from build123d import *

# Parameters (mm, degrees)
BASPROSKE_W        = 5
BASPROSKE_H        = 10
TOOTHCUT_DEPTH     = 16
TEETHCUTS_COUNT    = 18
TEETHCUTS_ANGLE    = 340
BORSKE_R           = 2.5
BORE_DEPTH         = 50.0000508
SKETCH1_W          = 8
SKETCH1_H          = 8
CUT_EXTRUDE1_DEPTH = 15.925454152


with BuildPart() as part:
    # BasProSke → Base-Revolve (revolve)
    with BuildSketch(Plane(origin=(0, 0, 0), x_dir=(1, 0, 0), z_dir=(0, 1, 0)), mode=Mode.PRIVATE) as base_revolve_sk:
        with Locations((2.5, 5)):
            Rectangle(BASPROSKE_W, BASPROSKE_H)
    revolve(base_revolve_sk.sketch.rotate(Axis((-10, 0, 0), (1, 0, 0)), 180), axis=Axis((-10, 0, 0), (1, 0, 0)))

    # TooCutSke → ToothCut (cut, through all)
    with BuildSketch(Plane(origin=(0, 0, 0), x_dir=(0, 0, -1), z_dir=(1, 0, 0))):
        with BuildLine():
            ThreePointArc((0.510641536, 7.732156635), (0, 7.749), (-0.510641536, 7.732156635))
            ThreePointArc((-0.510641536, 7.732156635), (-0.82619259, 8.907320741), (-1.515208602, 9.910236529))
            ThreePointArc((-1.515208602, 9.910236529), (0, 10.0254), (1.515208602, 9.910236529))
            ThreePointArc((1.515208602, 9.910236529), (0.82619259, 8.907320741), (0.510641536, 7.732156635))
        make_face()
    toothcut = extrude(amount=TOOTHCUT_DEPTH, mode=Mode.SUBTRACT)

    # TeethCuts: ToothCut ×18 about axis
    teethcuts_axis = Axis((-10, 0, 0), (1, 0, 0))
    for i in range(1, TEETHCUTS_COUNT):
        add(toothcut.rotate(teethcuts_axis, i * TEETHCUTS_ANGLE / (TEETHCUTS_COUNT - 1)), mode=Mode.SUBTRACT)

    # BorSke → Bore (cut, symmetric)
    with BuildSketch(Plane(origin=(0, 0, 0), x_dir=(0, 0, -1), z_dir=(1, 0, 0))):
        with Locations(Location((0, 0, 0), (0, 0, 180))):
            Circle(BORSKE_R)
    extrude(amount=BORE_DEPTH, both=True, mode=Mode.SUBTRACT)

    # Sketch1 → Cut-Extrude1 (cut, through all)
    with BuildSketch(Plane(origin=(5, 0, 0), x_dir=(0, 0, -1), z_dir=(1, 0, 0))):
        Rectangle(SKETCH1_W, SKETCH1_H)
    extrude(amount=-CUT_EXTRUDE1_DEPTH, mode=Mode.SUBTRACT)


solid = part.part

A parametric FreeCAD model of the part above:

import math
import FreeCAD as App
import Part
import Sketcher
from FreeCAD import Vector
Q = App.Units.Quantity


def add_polygon(sketch, points):
    """Adds a closed chain of lines whose ends are joined by coincident constraints."""
    first, n = sketch.GeometryCount, len(points)
    for a, b in zip(points, points[1:] + points[:1]):
        sketch.addGeometry(Part.LineSegment(App.Vector(*a, 0), App.Vector(*b, 0)), False)
    for i in range(n):
        sketch.addConstraint(Sketcher.Constraint("Coincident", first + i, 2, first + (i + 1) % n, 1))

doc = App.newDocument("Part")
body = doc.addObject("PartDesign::Body", "Body")

sketch1 = body.newObject("Sketcher::SketchObject", "Sketch")
sketch1.AttachmentSupport = (doc.getObject("XZ_Plane"), [""])
sketch1.MapMode = "FlatFace"
add_polygon(sketch1, [(0, -10), (0, 0), (5, 0), (5, -10)])
sketch1.addConstraint(Sketcher.Constraint("Vertical", 0))
sketch1.addConstraint(Sketcher.Constraint("Horizontal", 1))
sketch1.addConstraint(Sketcher.Constraint("Vertical", 2))
sketch1.addConstraint(Sketcher.Constraint("Horizontal", 3))
sketch1.addConstraint(Sketcher.Constraint("Coincident", 0, 2, -1, 1))
sketch1.addConstraint(Sketcher.Constraint("DistanceX", 1, 1, 1, 2, Q("5 mm")))
sketch1.addConstraint(Sketcher.Constraint("DistanceY", 0, 1, 0, 2, Q("10 mm")))
revolution = body.newObject("PartDesign::Revolution", "Revolution")
revolution.Profile = sketch1
revolution.ReferenceAxis = (sketch1, ["H_Axis"])
revolution.Angle = 360

sketch2 = body.newObject("Sketcher::SketchObject", "Sketch001")
sketch2.AttachmentSupport = (doc.getObject("YZ_Plane"), [""])
sketch2.MapMode = "FlatFace"
sketch2.addGeometry(Part.ArcOfCircle(Part.Circle(Vector(0, 0, 0), Vector(0, 0, 1), 7.7), math.radians(-3.78), math.radians(3.78)), False)
sketch2.addGeometry(Part.ArcOfCircle(Part.Circle(Vector(7.4, -4.1, 0), Vector(0, 0, 1), 3.6), math.radians(46), math.radians(85)), False)
sketch2.addGeometry(Part.ArcOfCircle(Part.Circle(Vector(0, 0, 0), Vector(0, 0, 1), 10), math.radians(-8.69), math.radians(8.69)), False)
sketch2.addGeometry(Part.ArcOfCircle(Part.Circle(Vector(7.4, 4.1, 0), Vector(0, 0, 1), 3.6), math.radians(-85), math.radians(-46)), False)
sketch2.addConstraint(Sketcher.Constraint("Coincident", 0, 1, 1, 2))
sketch2.addConstraint(Sketcher.Constraint("Coincident", 1, 1, 2, 1))
sketch2.addConstraint(Sketcher.Constraint("Coincident", 2, 2, 3, 2))
sketch2.addConstraint(Sketcher.Constraint("Coincident", 3, 1, 0, 2))
sketch2.addConstraint(Sketcher.Constraint("Coincident", 0, 3, -1, 1))
sketch2.addConstraint(Sketcher.Constraint("Coincident", 2, 3, -1, 1))
sketch2.addConstraint(Sketcher.Constraint("Equal", 1, 3))
sketch2.addConstraint(Sketcher.Constraint("Symmetric", 1, 3, 3, 3, -1))
sketch2.addConstraint(Sketcher.Constraint("Radius", 1, Q("3.6 mm")))
sketch2.addConstraint(Sketcher.Constraint("Radius", 0, Q("7.749 mm")))
sketch2.addConstraint(Sketcher.Constraint("Radius", 2, Q("10.0254 mm")))
sketch2.addConstraint(Sketcher.Constraint("DistanceX", -1, 1, 1, 3, Q("7.399578 mm")))
sketch2.addConstraint(Sketcher.Constraint("DistanceY", 0, 1, -1, 1, Q("0.510642 mm")))
pocket1 = body.newObject("PartDesign::Pocket", "Pocket")
pocket1.Profile = sketch2
pocket1.Type = "ThroughAll"
pocket1.Reversed = True
doc.recompute()

polarpattern = body.newObject("PartDesign::PolarPattern", "PolarPattern")
polarpattern.Originals = [pocket1]
polarpattern.Axis = (doc.getObject("X_Axis"), [""])
polarpattern.Angle = 360
polarpattern.Occurrences = 18
body.Tip = polarpattern

sketch3 = body.newObject("Sketcher::SketchObject", "Sketch002")
sketch3.AttachmentSupport = (doc.getObject("YZ_Plane"), [""])
sketch3.MapMode = "FlatFace"
sketch3.addGeometry(Part.Circle(Vector(0, 0, 0), Vector(0, 0, 1), 2.5), False)
sketch3.addConstraint(Sketcher.Constraint("Coincident", 0, 3, -1, 1))
sketch3.addConstraint(Sketcher.Constraint("Diameter", 0, Q("5 mm")))
pocket2 = body.newObject("PartDesign::Pocket", "Pocket001")
pocket2.Profile = sketch3
pocket2.Length = 100.000102
pocket2.Midplane = True

sketch4 = body.newObject("Sketcher::SketchObject", "Sketch003")
sketch4.AttachmentSupport = (doc.getObject("YZ_Plane"), [""])
sketch4.MapMode = "FlatFace"
sketch4.AttachmentOffset = App.Placement(Vector(0, 0, 5), App.Rotation())
add_polygon(sketch4, [(4, 4), (-4, 4), (-4, -4), (4, -4)])
sketch4.addConstraint(Sketcher.Constraint("Horizontal", 0))
sketch4.addConstraint(Sketcher.Constraint("Vertical", 1))
sketch4.addConstraint(Sketcher.Constraint("Horizontal", 2))
sketch4.addConstraint(Sketcher.Constraint("Vertical", 3))
sketch4.addConstraint(Sketcher.Constraint("Symmetric", 0, 2, 2, 2, -1, 1))
sketch4.addConstraint(Sketcher.Constraint("Equal", 2, 1))
sketch4.addConstraint(Sketcher.Constraint("DistanceX", 0, 2, 0, 1, Q("8 mm")))
pocket3 = body.newObject("PartDesign::Pocket", "Pocket002")
pocket3.Profile = sketch4
pocket3.Type = "ThroughAll"

doc.recompute()
